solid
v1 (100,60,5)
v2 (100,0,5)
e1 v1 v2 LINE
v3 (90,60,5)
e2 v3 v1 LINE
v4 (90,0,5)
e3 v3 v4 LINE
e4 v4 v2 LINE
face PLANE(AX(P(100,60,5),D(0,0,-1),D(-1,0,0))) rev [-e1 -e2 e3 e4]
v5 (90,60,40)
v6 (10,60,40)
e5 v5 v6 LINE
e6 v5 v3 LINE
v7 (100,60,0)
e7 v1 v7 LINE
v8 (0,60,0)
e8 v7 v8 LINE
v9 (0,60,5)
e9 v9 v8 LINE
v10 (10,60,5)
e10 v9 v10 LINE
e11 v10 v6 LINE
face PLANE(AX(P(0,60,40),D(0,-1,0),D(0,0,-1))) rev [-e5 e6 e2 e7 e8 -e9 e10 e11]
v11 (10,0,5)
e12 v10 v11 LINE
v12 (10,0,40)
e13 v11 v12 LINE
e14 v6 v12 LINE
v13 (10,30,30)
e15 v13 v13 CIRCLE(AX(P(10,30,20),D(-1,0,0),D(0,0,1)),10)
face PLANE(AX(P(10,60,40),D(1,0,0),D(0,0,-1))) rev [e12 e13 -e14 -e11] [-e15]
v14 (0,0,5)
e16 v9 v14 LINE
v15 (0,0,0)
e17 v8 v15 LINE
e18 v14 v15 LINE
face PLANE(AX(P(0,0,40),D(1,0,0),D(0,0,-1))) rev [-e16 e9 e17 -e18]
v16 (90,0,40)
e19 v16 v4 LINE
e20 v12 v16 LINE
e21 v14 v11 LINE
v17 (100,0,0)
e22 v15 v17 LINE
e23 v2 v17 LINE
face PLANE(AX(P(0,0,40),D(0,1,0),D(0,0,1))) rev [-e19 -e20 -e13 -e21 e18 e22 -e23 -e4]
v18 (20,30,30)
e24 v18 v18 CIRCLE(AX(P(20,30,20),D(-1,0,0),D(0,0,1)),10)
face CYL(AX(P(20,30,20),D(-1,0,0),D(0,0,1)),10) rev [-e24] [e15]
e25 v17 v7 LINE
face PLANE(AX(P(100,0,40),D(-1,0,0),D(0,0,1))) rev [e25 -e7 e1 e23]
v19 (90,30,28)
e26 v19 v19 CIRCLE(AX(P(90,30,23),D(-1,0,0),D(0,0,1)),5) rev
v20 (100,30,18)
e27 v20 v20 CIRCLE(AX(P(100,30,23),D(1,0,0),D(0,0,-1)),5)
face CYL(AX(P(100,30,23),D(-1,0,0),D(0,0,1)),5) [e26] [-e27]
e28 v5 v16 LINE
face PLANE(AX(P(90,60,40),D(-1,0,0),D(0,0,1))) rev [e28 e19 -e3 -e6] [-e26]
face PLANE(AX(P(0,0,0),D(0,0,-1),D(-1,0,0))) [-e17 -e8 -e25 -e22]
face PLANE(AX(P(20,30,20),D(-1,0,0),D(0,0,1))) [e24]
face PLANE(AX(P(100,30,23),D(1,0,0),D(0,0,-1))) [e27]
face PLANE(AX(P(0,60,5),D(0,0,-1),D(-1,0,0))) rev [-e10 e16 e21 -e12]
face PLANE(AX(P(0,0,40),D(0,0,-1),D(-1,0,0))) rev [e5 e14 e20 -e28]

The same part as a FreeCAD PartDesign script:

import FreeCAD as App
import Part
import Sketcher
from FreeCAD import Vector
Q = App.Units.Quantity


def add_polygon(sketch, points):
    """Adds a closed chain of lines whose ends are joined by coincident constraints."""
    first, n = sketch.GeometryCount, len(points)
    for a, b in zip(points, points[1:] + points[:1]):
        sketch.addGeometry(Part.LineSegment(App.Vector(*a, 0), App.Vector(*b, 0)), False)
    for i in range(n):
        sketch.addConstraint(Sketcher.Constraint("Coincident", first + i, 2, first + (i + 1) % n, 1))

doc = App.newDocument("Part")
body = doc.addObject("PartDesign::Body", "Body")

# Sketch on XY plane
sketch1 = body.newObject("Sketcher::SketchObject", "Sketch")
sketch1.AttachmentSupport = (doc.getObject("XY_Plane"), [""])
sketch1.MapMode = "FlatFace"
add_polygon(sketch1, [(0, 60), (0, 0), (100, 0), (100, 60)])  # lines 0-3
sketch1.addConstraint([
    Sketcher.Constraint("Vertical", 0),
    Sketcher.Constraint("Horizontal", 1),
    Sketcher.Constraint("Vertical", 2),
    Sketcher.Constraint("Horizontal", 3),
    Sketcher.Constraint("Coincident", 0, 2, -1, 1),
    Sketcher.Constraint("DistanceX", 1, 1, 1, 2, Q("100 mm")),
    Sketcher.Constraint("DistanceY", 0, 2, 0, 1, Q("60 mm")),
])
pad1 = body.newObject("PartDesign::Pad", "Pad")
pad1.Profile = sketch1
pad1.Length = 40

# Sketch on XZ plane
sketch2 = body.newObject("Sketcher::SketchObject", "Sketch001")
sketch2.AttachmentSupport = (doc.getObject("XZ_Plane"), [""])
sketch2.MapMode = "FlatFace"
add_polygon(sketch2, [(0, 40), (0, 5), (10, 5), (10, 40)])  # lines 0-3
add_polygon(sketch2, [(90, 40), (90, 5), (100, 5), (100, 40)])  # lines 4-7
sketch2.addConstraint([
    Sketcher.Constraint("Vertical", 0),
    Sketcher.Constraint("Horizontal", 1),
    Sketcher.Constraint("Vertical", 2),
    Sketcher.Constraint("Horizontal", 3),
    Sketcher.Constraint("Vertical", 4),
    Sketcher.Constraint("Horizontal", 5),
    Sketcher.Constraint("Vertical", 6),
    Sketcher.Constraint("Horizontal", 7),
    Sketcher.Constraint("PointOnObject", 0, 2, -2),
    Sketcher.Constraint("Horizontal", 1, 2, 4, 2),
    Sketcher.Constraint("Horizontal", 3, 2, 6, 2),
    Sketcher.Constraint("Equal", 3, 5),
    Sketcher.Constraint("DistanceX", 1, 1, 1, 2, Q("10 mm")),
    Sketcher.Constraint("DistanceY", 0, 2, 0, 1, Q("35 mm")),
    Sketcher.Constraint("DistanceY", -1, 1, 0, 2, Q("5 mm")),
    Sketcher.Constraint("DistanceX", -1, 1, 4, 2, Q("90 mm")),
])
pocket1 = body.newObject("PartDesign::Pocket", "Pocket")
pocket1.Profile = sketch2
pocket1.Type = "ThroughAll"

# Sketch on YZ plane
sketch3 = body.newObject("Sketcher::SketchObject", "Sketch002")
sketch3.AttachmentSupport = (doc.getObject("YZ_Plane"), [""])
sketch3.MapMode = "FlatFace"
sketch3.AttachmentOffset = App.Placement(Vector(0, 0, 10), App.Rotation())
sketch3.addGeometry(Part.Circle(Vector(30, 20, 0), Vector(0, 0, 1), 10), False)
sketch3.addConstraint([
    Sketcher.Constraint("Diameter", 0, Q("20 mm")),
    Sketcher.Constraint("DistanceX", -1, 1, 0, 3, Q("30 mm")),
    Sketcher.Constraint("DistanceY", -1, 1, 0, 3, Q("20 mm")),
])
pocket2 = body.newObject("PartDesign::Pocket", "Pocket001")
pocket2.Profile = sketch3
pocket2.Length = 10
pocket2.Reversed = True

# Sketch on YZ plane
sketch4 = body.newObject("Sketcher::SketchObject", "Sketch003")
sketch4.AttachmentSupport = (doc.getObject("YZ_Plane"), [""])
sketch4.MapMode = "FlatFace"
sketch4.AttachmentOffset = App.Placement(Vector(0, 0, 90), App.Rotation())
sketch4.addGeometry(Part.Circle(Vector(30, 23, 0), Vector(0, 0, 1), 5), False)
sketch4.addConstraint([
    Sketcher.Constraint("Diameter", 0, Q("10 mm")),
    Sketcher.Constraint("DistanceX", -1, 1, 0, 3, Q("30 mm")),
    Sketcher.Constraint("DistanceY", -1, 1, 0, 3, Q("23 mm")),
])
pad2 = body.newObject("PartDesign::Pad", "Pad001")
pad2.Profile = sketch4
pad2.Length = 10

doc.recompute()
